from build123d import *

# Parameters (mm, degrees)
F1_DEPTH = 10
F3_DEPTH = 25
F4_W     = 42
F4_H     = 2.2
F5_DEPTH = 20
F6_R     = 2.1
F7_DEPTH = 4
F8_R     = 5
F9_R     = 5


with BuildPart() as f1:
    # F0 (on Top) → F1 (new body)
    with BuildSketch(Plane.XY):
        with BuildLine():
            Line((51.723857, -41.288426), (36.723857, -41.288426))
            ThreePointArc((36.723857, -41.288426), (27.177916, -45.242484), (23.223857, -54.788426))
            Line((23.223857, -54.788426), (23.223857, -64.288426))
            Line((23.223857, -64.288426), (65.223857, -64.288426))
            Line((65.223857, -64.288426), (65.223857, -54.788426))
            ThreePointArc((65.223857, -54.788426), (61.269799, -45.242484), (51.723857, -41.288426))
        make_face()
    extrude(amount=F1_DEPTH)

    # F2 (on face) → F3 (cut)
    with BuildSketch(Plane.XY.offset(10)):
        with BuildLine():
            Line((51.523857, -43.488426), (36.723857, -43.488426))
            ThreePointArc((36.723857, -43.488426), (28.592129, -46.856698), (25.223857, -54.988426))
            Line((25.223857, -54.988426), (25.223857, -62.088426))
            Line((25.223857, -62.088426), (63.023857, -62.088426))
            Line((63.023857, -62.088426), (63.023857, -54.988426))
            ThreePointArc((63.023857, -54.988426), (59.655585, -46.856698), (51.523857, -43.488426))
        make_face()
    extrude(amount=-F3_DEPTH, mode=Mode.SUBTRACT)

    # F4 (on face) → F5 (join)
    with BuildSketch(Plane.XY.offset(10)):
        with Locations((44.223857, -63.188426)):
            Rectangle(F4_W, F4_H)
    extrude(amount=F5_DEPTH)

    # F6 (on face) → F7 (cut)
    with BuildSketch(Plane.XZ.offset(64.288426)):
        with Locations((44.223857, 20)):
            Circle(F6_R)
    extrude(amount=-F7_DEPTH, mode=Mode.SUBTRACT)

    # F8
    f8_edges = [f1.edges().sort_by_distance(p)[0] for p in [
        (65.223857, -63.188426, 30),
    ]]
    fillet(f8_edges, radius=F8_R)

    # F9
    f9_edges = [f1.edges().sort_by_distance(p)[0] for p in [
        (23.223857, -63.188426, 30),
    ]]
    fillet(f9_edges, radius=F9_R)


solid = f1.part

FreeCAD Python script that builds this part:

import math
import FreeCAD as App
import Part
import Sketcher
from FreeCAD import Vector


def edges_at(feature, points):
    """Names of the edges that pass closest to the given points."""
    edges = feature.Shape.Edges
    near = lambda p: min(range(len(edges)), key=lambda i: edges[i].distToShape(Part.Vertex(*p))[0])
    return sorted({f"Edge{near(p) + 1}" for p in points})


def add_polygon(sketch, points):
    """Adds a closed chain of lines whose ends are joined by coincident constraints."""
    first, n = sketch.GeometryCount, len(points)
    for a, b in zip(points, points[1:] + points[:1]):
        sketch.addGeometry(Part.LineSegment(App.Vector(*a, 0), App.Vector(*b, 0)), False)
    for i in range(n):
        sketch.addConstraint(Sketcher.Constraint("Coincident", first + i, 2, first + (i + 1) % n, 1))

doc = App.newDocument("Part")
body = doc.addObject("PartDesign::Body", "Body")

# Sketch on XY plane
sketch1 = body.newObject("Sketcher::SketchObject", "Sketch")
sketch1.AttachmentSupport = (doc.getObject("XY_Plane"), [""])
sketch1.MapMode = "FlatFace"
sketch1.addGeometry(Part.LineSegment(Vector(52, -41, 0), Vector(37, -41, 0)), False)
sketch1.addGeometry(Part.ArcOfCircle(Part.Circle(Vector(37, -55, 0), Vector(0, 0, 1), 14), math.radians(90), math.radians(180)), False)
sketch1.addGeometry(Part.LineSegment(Vector(23, -55, 0), Vector(23, -64, 0)), False)
sketch1.addGeometry(Part.LineSegment(Vector(23, -64, 0), Vector(65, -64, 0)), False)
sketch1.addGeometry(Part.LineSegment(Vector(65, -64, 0), Vector(65, -55, 0)), False)
sketch1.addGeometry(Part.ArcOfCircle(Part.Circle(Vector(52, -55, 0), Vector(0, 0, 1), 13), math.radians(0), math.radians(90)), False)
sketch1.addConstraint(Sketcher.Constraint("Tangent", 0, 2, 1, 1))
sketch1.addConstraint(Sketcher.Constraint("Tangent", 1, 2, 2, 1))
sketch1.addConstraint(Sketcher.Constraint("Coincident", 2, 2, 3, 1))
sketch1.addConstraint(Sketcher.Constraint("Coincident", 3, 2, 4, 1))
sketch1.addConstraint(Sketcher.Constraint("Tangent", 4, 2, 5, 1))
sketch1.addConstraint(Sketcher.Constraint("Tangent", 5, 2, 0, 1))
sketch1.addConstraint(Sketcher.Constraint("Horizontal", 0))
sketch1.addConstraint(Sketcher.Constraint("Vertical", 2))
sketch1.addConstraint(Sketcher.Constraint("Horizontal", 3))
sketch1.addConstraint(Sketcher.Constraint("Vertical", 4))
sketch1.addConstraint(Sketcher.Constraint("Equal", 1, 5))
sketch1.addConstraint(Sketcher.Constraint("Radius", 1, 13.5))
sketch1.addConstraint(Sketcher.Constraint("DistanceX", 0, 2, 0, 1, 15.0))
sketch1.addConstraint(Sketcher.Constraint("DistanceY", 2, 2, 2, 1, 9.5))
sketch1.addConstraint(Sketcher.Constraint("DistanceX", -1, 1, 5, 3, 51.723859))
sketch1.addConstraint(Sketcher.Constraint("DistanceY", 1, 3, -1, 1, 54.788426))
pad1 = body.newObject("PartDesign::Pad", "Pad")
pad1.Profile = sketch1
pad1.Length = 10

# Sketch on XY plane
sketch2 = body.newObject("Sketcher::SketchObject", "Sketch001")
sketch2.AttachmentSupport = (doc.getObject("XY_Plane"), [""])
sketch2.MapMode = "FlatFace"
sketch2.AttachmentOffset = App.Placement(Vector(0, 0, 10), App.Rotation())
sketch2.addGeometry(Part.LineSegment(Vector(52, -43, 0), Vector(37, -43, 0)), False)
sketch2.addGeometry(Part.ArcOfCircle(Part.Circle(Vector(37, -55, 0), Vector(0, 0, 1), 11), math.radians(90), math.radians(180)), False)
sketch2.addGeometry(Part.LineSegment(Vector(25, -55, 0), Vector(25, -62, 0)), False)
sketch2.addGeometry(Part.LineSegment(Vector(25, -62, 0), Vector(63, -62, 0)), False)
sketch2.addGeometry(Part.LineSegment(Vector(63, -62, 0), Vector(63, -55, 0)), False)
sketch2.addGeometry(Part.ArcOfCircle(Part.Circle(Vector(52, -55, 0), Vector(0, 0, 1), 11), math.radians(0), math.radians(90)), False)
sketch2.addConstraint(Sketcher.Constraint("Tangent", 0, 2, 1, 1))
sketch2.addConstraint(Sketcher.Constraint("Tangent", 1, 2, 2, 1))
sketch2.addConstraint(Sketcher.Constraint("Coincident", 2, 2, 3, 1))
sketch2.addConstraint(Sketcher.Constraint("Coincident", 3, 2, 4, 1))
sketch2.addConstraint(Sketcher.Constraint("Tangent", 4, 2, 5, 1))
sketch2.addConstraint(Sketcher.Constraint("Tangent", 5, 2, 0, 1))
sketch2.addConstraint(Sketcher.Constraint("Horizontal", 0))
sketch2.addConstraint(Sketcher.Constraint("Vertical", 2))
sketch2.addConstraint(Sketcher.Constraint("Horizontal", 3))
sketch2.addConstraint(Sketcher.Constraint("Vertical", 4))
sketch2.addConstraint(Sketcher.Constraint("Equal", 1, 5))
sketch2.addConstraint(Sketcher.Constraint("Radius", 1, 11.5))
sketch2.addConstraint(Sketcher.Constraint("DistanceX", 0, 2, 0, 1, 14.8))
sketch2.addConstraint(Sketcher.Constraint("DistanceY", 2, 2, 2, 1, 7.1))
sketch2.addConstraint(Sketcher.Constraint("DistanceX", -1, 1, 1, 3, 36.723857))
sketch2.addConstraint(Sketcher.Constraint("DistanceY", 1, 3, -1, 1, 54.988426))
pocket1 = body.newObject("PartDesign::Pocket", "Pocket")
pocket1.Profile = sketch2
pocket1.Length = 25

# Sketch on XY plane
sketch3 = body.newObject("Sketcher::SketchObject", "Sketch002")
sketch3.AttachmentSupport = (doc.getObject("XY_Plane"), [""])
sketch3.MapMode = "FlatFace"
sketch3.AttachmentOffset = App.Placement(Vector(0, 0, 10), App.Rotation())
add_polygon(sketch3, [(23.2, -62.1), (23.2, -64.3), (65.2, -64.3), (65.2, -62.1)])  # lines 0-3
sketch3.addConstraint(Sketcher.Constraint("Vertical", 0))
sketch3.addConstraint(Sketcher.Constraint("Horizontal", 1))
sketch3.addConstraint(Sketcher.Constraint("Vertical", 2))
sketch3.addConstraint(Sketcher.Constraint("Horizontal", 3))
sketch3.addConstraint(Sketcher.Constraint("DistanceX", 1, 1, 1, 2, 42.0))
sketch3.addConstraint(Sketcher.Constraint("DistanceY", 0, 2, 0, 1, 2.2))
sketch3.addConstraint(Sketcher.Constraint("DistanceX", -1, 1, 0, 2, 23.223857))
sketch3.addConstraint(Sketcher.Constraint("DistanceY", 0, 2, -1, 1, 64.288426))
pad2 = body.newObject("PartDesign::Pad", "Pad001")
pad2.Profile = sketch3
pad2.Length = 20

# Sketch on XZ plane
sketch4 = body.newObject("Sketcher::SketchObject", "Sketch003")
sketch4.AttachmentSupport = (doc.getObject("XZ_Plane"), [""])
sketch4.MapMode = "FlatFace"
sketch4.AttachmentOffset = App.Placement(Vector(0, 0, 64.288426), App.Rotation())
sketch4.addGeometry(Part.Circle(Vector(44.2, 20, 0), Vector(0, 0, 1), 2.1), False)
sketch4.addConstraint(Sketcher.Constraint("Diameter", 0, 4.2))
sketch4.addConstraint(Sketcher.Constraint("DistanceY", -1, 1, 0, 3, 20.0))
sketch4.addConstraint(Sketcher.Constraint("DistanceX", -1, 1, 0, 3, 44.223857))
pocket2 = body.newObject("PartDesign::Pocket", "Pocket001")
pocket2.Profile = sketch4
pocket2.Length = 4
doc.recompute()

fillet = body.newObject("PartDesign::Fillet", "Fillet")
fillet.Base = (pocket2, edges_at(pocket2, [(65.224, -63.188, 30)]))
fillet.Radius = 5
doc.recompute()

fillet2 = body.newObject("PartDesign::Fillet", "Fillet001")
fillet2.Base = (fillet, edges_at(fillet, [(23.224, -63.188, 30)]))
fillet2.Radius = 5

doc.recompute()
